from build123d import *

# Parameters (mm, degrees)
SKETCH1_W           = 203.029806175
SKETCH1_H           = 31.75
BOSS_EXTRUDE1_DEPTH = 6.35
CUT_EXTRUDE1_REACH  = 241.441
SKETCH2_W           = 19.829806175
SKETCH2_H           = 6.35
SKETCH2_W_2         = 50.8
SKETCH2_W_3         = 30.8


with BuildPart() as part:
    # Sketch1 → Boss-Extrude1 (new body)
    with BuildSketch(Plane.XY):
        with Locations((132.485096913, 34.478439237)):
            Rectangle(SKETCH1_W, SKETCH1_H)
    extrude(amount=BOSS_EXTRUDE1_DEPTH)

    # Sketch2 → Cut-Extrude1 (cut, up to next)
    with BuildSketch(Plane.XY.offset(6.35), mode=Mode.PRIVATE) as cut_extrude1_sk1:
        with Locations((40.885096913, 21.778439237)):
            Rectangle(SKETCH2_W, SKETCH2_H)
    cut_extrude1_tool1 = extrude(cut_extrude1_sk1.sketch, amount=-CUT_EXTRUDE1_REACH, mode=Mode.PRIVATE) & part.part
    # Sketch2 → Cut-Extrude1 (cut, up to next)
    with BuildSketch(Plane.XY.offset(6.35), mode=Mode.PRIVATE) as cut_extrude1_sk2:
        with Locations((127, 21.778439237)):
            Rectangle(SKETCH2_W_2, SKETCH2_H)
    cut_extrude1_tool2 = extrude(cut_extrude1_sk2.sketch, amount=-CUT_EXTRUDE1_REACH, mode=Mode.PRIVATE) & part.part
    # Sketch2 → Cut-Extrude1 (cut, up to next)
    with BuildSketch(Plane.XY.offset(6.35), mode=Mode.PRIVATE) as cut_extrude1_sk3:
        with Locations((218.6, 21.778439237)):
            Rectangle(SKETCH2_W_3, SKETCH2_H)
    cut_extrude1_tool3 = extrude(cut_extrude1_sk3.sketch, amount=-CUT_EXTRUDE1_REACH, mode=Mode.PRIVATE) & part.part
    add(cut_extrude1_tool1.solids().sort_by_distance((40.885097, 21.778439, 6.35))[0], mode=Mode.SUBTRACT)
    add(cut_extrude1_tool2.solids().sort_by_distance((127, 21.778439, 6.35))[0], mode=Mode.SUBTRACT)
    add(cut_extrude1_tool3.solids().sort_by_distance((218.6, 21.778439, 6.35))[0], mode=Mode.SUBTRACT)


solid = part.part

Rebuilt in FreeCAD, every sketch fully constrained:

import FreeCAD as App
import Part
import Sketcher
from FreeCAD import Vector
Q = App.Units.Quantity

doc = App.newDocument("Part")
body = doc.addObject("PartDesign::Body", "Body")

# Sketch on XY plane
sketch1 = doc.addObject("Sketcher::SketchObject", "Sketch")
body.addObject(sketch1)
sketch1.AttachmentSupport = (doc.XY_Plane, [""])
sketch1.MapMode = "FlatFace"
sketch1.addGeometry(Part.LineSegment(Vector(31, 50, 0), Vector(31, 19, 0)), False)
sketch1.addGeometry(Part.LineSegment(Vector(31, 19, 0), Vector(234, 19, 0)), False)
sketch1.addGeometry(Part.LineSegment(Vector(234, 19, 0), Vector(234, 50, 0)), False)
sketch1.addGeometry(Part.LineSegment(Vector(234, 50, 0), Vector(31, 50, 0)), False)
sketch1.addConstraint(Sketcher.Constraint("Coincident", 0, 2, 1, 1))
sketch1.addConstraint(Sketcher.Constraint("Coincident", 1, 2, 2, 1))
sketch1.addConstraint(Sketcher.Constraint("Coincident", 2, 2, 3, 1))
sketch1.addConstraint(Sketcher.Constraint("Coincident", 3, 2, 0, 1))
sketch1.addConstraint(Sketcher.Constraint("Vertical", 0))
sketch1.addConstraint(Sketcher.Constraint("Horizontal", 1))
sketch1.addConstraint(Sketcher.Constraint("Vertical", 2))
sketch1.addConstraint(Sketcher.Constraint("Horizontal", 3))
sketch1.addConstraint(Sketcher.Constraint("DistanceY", 0, 2, 0, 1, Q("1.25 in")))
sketch1.addConstraint(Sketcher.Constraint("DistanceX", -1, 1, 1, 2, Q("234 mm")))
sketch1.addConstraint(Sketcher.Constraint("DistanceX", 1, 1, 1, 2, Q("203.029806 mm")))
sketch1.addConstraint(Sketcher.Constraint("DistanceY", -1, 1, 0, 2, Q("18.603439 mm")))
pad1 = doc.addObject("PartDesign::Pad", "Pad")
body.addObject(pad1)
pad1.Profile = sketch1
pad1.Length = Q("0.25 in")

# Sketch on XY plane
sketch2 = doc.addObject("Sketcher::SketchObject", "Sketch001")
body.addObject(sketch2)
sketch2.AttachmentSupport = (doc.XY_Plane, [""])
sketch2.MapMode = "FlatFace"
sketch2.AttachmentOffset = App.Placement(Vector(0, 0, 0.25 * 25.4), App.Rotation())
sketch2.addGeometry(Part.LineSegment(Vector(31, 25, 0), Vector(31, 19, 0)), False)
sketch2.addGeometry(Part.LineSegment(Vector(31, 19, 0), Vector(51, 19, 0)), False)
sketch2.addGeometry(Part.LineSegment(Vector(51, 19, 0), Vector(51, 25, 0)), False)
sketch2.addGeometry(Part.LineSegment(Vector(51, 25, 0), Vector(31, 25, 0)), False)
sketch2.addConstraint(Sketcher.Constraint("Coincident", 0, 2, 1, 1))
sketch2.addConstraint(Sketcher.Constraint("Coincident", 1, 2, 2, 1))
sketch2.addConstraint(Sketcher.Constraint("Coincident", 2, 2, 3, 1))
sketch2.addConstraint(Sketcher.Constraint("Coincident", 3, 2, 0, 1))
sketch2.addConstraint(Sketcher.Constraint("Vertical", 0))
sketch2.addConstraint(Sketcher.Constraint("Horizontal", 1))
sketch2.addConstraint(Sketcher.Constraint("Vertical", 2))
sketch2.addConstraint(Sketcher.Constraint("Horizontal", 3))
sketch2.addConstraint(Sketcher.Constraint("DistanceX", -1, 1, 1, 2, Q("2 in")))
sketch2.addConstraint(Sketcher.Constraint("DistanceY", 0, 2, 0, 1, Q("0.25 in")))
sketch2.addConstraint(Sketcher.Constraint("DistanceX", 1, 1, 1, 2, Q("19.829806 mm")))
sketch2.addConstraint(Sketcher.Constraint("DistanceY", -1, 1, 0, 2, Q("18.603439 mm")))
pocket1 = doc.addObject("PartDesign::Pocket", "Pocket")
body.addObject(pocket1)
pocket1.Profile = sketch2
pocket1.Type = "UpToFirst"

# Sketch on XY plane
sketch3 = doc.addObject("Sketcher::SketchObject", "Sketch002")
body.addObject(sketch3)
sketch3.AttachmentSupport = (doc.XY_Plane, [""])
sketch3.MapMode = "FlatFace"
sketch3.AttachmentOffset = App.Placement(Vector(0, 0, 0.25 * 25.4), App.Rotation())
sketch3.addGeometry(Part.LineSegment(Vector(102, 25, 0), Vector(102, 19, 0)), False)
sketch3.addGeometry(Part.LineSegment(Vector(102, 19, 0), Vector(152, 19, 0)), False)
sketch3.addGeometry(Part.LineSegment(Vector(152, 19, 0), Vector(152, 25, 0)), False)
sketch3.addGeometry(Part.LineSegment(Vector(152, 25, 0), Vector(102, 25, 0)), False)
sketch3.addConstraint(Sketcher.Constraint("Coincident", 0, 2, 1, 1))
sketch3.addConstraint(Sketcher.Constraint("Coincident", 1, 2, 2, 1))
sketch3.addConstraint(Sketcher.Constraint("Coincident", 2, 2, 3, 1))
sketch3.addConstraint(Sketcher.Constraint("Coincident", 3, 2, 0, 1))
sketch3.addConstraint(Sketcher.Constraint("Vertical", 0))
sketch3.addConstraint(Sketcher.Constraint("Horizontal", 1))
sketch3.addConstraint(Sketcher.Constraint("Vertical", 2))
sketch3.addConstraint(Sketcher.Constraint("Horizontal", 3))
sketch3.addConstraint(Sketcher.Constraint("DistanceX", 1, 1, 1, 2, Q("2 in")))
sketch3.addConstraint(Sketcher.Constraint("DistanceX", -1, 1, 0, 2, Q("4 in")))
sketch3.addConstraint(Sketcher.Constraint("DistanceY", 0, 2, 0, 1, Q("0.25 in")))
sketch3.addConstraint(Sketcher.Constraint("DistanceY", -1, 1, 0, 2, Q("18.603439 mm")))
pocket2 = doc.addObject("PartDesign::Pocket", "Pocket001")
body.addObject(pocket2)
pocket2.Profile = sketch3
pocket2.Type = "UpToFirst"

# Sketch on XY plane
sketch4 = doc.addObject("Sketcher::SketchObject", "Sketch003")
body.addObject(sketch4)
sketch4.AttachmentSupport = (doc.XY_Plane, [""])
sketch4.MapMode = "FlatFace"
sketch4.AttachmentOffset = App.Placement(Vector(0, 0, 0.25 * 25.4), App.Rotation())
sketch4.addGeometry(Part.LineSegment(Vector(203, 25, 0), Vector(203, 19, 0)), False)
sketch4.addGeometry(Part.LineSegment(Vector(203, 19, 0), Vector(234, 19, 0)), False)
sketch4.addGeometry(Part.LineSegment(Vector(234, 19, 0), Vector(234, 25, 0)), False)
sketch4.addGeometry(Part.LineSegment(Vector(234, 25, 0), Vector(203, 25, 0)), False)
sketch4.addConstraint(Sketcher.Constraint("Coincident", 0, 2, 1, 1))
sketch4.addConstraint(Sketcher.Constraint("Coincident", 1, 2, 2, 1))
sketch4.addConstraint(Sketcher.Constraint("Coincident", 2, 2, 3, 1))
sketch4.addConstraint(Sketcher.Constraint("Coincident", 3, 2, 0, 1))
sketch4.addConstraint(Sketcher.Constraint("Vertical", 0))
sketch4.addConstraint(Sketcher.Constraint("Horizontal", 1))
sketch4.addConstraint(Sketcher.Constraint("Vertical", 2))
sketch4.addConstraint(Sketcher.Constraint("Horizontal", 3))
sketch4.addConstraint(Sketcher.Constraint("DistanceX", -1, 1, 0, 2, Q("8 in")))
sketch4.addConstraint(Sketcher.Constraint("DistanceY", 0, 2, 0, 1, Q("0.25 in")))
sketch4.addConstraint(Sketcher.Constraint("DistanceX", 1, 1, 1, 2, Q("30.8 mm")))
sketch4.addConstraint(Sketcher.Constraint("DistanceY", -1, 1, 0, 2, Q("18.603439 mm")))
pocket3 = doc.addObject("PartDesign::Pocket", "Pocket002")
body.addObject(pocket3)
pocket3.Profile = sketch4
pocket3.Type = "UpToFirst"

doc.recompute()
